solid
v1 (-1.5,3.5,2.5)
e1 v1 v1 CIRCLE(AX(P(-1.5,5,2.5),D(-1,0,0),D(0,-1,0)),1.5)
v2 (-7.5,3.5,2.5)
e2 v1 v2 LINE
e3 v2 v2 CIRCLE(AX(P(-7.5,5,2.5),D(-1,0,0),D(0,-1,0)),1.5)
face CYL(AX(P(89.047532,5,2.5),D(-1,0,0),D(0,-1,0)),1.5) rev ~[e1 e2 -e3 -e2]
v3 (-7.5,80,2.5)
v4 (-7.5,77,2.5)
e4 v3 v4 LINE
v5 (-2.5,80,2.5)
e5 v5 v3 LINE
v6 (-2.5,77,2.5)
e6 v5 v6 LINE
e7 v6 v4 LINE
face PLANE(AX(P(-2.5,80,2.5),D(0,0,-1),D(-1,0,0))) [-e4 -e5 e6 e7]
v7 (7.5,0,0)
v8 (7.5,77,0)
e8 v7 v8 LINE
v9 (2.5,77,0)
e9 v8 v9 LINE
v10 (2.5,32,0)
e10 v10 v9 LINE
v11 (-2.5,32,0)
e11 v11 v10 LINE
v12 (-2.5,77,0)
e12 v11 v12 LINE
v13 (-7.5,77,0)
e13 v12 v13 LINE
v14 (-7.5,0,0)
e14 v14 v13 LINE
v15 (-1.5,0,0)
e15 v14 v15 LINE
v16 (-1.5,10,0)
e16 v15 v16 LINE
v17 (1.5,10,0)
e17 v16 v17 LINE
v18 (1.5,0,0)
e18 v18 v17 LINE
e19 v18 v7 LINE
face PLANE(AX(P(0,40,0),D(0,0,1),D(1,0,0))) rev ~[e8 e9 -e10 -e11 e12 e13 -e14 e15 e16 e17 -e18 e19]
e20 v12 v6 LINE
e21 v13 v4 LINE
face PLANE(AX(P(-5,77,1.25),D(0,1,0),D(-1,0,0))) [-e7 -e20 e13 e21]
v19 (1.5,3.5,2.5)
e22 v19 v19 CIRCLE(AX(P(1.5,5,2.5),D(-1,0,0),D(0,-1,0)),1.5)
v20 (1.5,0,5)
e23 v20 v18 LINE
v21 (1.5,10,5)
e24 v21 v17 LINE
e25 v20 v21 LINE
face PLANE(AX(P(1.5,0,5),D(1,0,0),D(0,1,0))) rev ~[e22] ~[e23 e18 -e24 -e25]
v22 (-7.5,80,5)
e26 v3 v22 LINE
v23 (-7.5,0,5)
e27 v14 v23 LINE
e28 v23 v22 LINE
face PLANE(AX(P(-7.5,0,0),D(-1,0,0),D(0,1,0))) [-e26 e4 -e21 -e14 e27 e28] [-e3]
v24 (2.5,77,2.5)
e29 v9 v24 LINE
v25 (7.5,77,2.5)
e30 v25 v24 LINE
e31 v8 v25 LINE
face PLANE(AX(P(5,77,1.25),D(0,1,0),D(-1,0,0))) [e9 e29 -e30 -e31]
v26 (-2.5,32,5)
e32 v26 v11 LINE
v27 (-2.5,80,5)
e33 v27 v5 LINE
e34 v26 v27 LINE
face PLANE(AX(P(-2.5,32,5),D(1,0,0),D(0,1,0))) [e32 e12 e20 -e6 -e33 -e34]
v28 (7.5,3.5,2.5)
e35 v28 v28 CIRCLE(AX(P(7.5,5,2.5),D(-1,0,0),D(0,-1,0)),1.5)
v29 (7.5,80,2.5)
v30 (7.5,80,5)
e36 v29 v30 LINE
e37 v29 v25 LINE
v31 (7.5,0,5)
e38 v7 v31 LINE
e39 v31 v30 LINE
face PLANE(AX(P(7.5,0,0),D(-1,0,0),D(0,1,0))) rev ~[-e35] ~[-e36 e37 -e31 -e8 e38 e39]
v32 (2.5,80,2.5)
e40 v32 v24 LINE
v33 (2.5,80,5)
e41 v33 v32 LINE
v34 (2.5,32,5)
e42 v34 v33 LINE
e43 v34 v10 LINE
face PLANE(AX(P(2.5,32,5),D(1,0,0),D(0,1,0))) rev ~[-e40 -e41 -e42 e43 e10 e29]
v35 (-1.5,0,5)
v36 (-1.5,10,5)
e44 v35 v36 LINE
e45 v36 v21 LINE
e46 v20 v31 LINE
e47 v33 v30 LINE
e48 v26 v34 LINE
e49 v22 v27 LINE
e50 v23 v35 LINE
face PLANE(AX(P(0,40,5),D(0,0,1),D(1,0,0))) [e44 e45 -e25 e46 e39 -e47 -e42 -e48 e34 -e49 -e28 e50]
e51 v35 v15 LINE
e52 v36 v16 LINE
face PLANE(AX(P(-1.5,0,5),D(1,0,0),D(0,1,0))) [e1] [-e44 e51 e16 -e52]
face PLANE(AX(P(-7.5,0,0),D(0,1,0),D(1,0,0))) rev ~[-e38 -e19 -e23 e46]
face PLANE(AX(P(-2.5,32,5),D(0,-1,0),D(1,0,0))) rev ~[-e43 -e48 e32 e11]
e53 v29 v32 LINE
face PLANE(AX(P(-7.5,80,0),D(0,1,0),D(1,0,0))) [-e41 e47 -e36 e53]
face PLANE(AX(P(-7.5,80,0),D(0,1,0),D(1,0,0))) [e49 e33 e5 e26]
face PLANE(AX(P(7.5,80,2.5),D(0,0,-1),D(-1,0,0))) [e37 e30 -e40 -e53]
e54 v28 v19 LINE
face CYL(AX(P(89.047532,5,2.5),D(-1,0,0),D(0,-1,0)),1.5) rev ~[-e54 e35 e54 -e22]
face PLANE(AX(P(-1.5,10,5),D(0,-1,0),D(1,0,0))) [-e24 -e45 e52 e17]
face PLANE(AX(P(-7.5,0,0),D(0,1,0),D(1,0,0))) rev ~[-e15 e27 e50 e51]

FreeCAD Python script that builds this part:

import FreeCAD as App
import Part
import Sketcher

doc = App.newDocument("Part")
body = doc.addObject("PartDesign::Body", "Body")

sketch1 = doc.addObject("Sketcher::SketchObject", "Sketch")
body.addObject(sketch1)
sketch1.AttachmentSupport = (doc.XY_Plane, [""])
sketch1.MapMode = "FlatFace"
sketch1.addGeometry([
    Part.LineSegment(App.Vector(-8, 80, 0), App.Vector(-8, 0, 0)),
    Part.LineSegment(App.Vector(-8, 0, 0), App.Vector(8, 0, 0)),
    Part.LineSegment(App.Vector(8, 0, 0), App.Vector(8, 80, 0)),
    Part.LineSegment(App.Vector(8, 80, 0), App.Vector(-8, 80, 0)),
], False)
sketch1.addConstraint([
    Sketcher.Constraint("Coincident", 0, 2, 1, 1),
    Sketcher.Constraint("Coincident", 1, 2, 2, 1),
    Sketcher.Constraint("Coincident", 2, 2, 3, 1),
    Sketcher.Constraint("Coincident", 3, 2, 0, 1),
    Sketcher.Constraint("Vertical", 0),
    Sketcher.Constraint("Horizontal", 1),
    Sketcher.Constraint("Vertical", 2),
    Sketcher.Constraint("Horizontal", 3),
    Sketcher.Constraint("Symmetric", 0, 2, 1, 2, -1, 1),
    Sketcher.Constraint("DistanceX", 1, 1, 1, 2, 15.0),
    Sketcher.Constraint("DistanceY", 0, 2, 0, 1, 80.0),
])
pad1 = doc.addObject("PartDesign::Pad", "Pad")
body.addObject(pad1)
pad1.Profile = sketch1
pad1.Length = 5

sketch2 = doc.addObject("Sketcher::SketchObject", "Sketch001")
body.addObject(sketch2)
sketch2.AttachmentSupport = (doc.XY_Plane, [""])
sketch2.MapMode = "FlatFace"
sketch2.AttachmentOffset = App.Placement(App.Vector(0, 0, 5), App.Rotation())
sketch2.addGeometry([
    Part.LineSegment(App.Vector(-2, 80, 0), App.Vector(-2, 32, 0)),
    Part.LineSegment(App.Vector(-2, 32, 0), App.Vector(2, 32, 0)),
    Part.LineSegment(App.Vector(2, 32, 0), App.Vector(2, 80, 0)),
    Part.LineSegment(App.Vector(2, 80, 0), App.Vector(-2, 80, 0)),
], False)
sketch2.addConstraint([
    Sketcher.Constraint("Coincident", 0, 2, 1, 1),
    Sketcher.Constraint("Coincident", 1, 2, 2, 1),
    Sketcher.Constraint("Coincident", 2, 2, 3, 1),
    Sketcher.Constraint("Coincident", 3, 2, 0, 1),
    Sketcher.Constraint("Vertical", 0),
    Sketcher.Constraint("Horizontal", 1),
    Sketcher.Constraint("Vertical", 2),
    Sketcher.Constraint("Horizontal", 3),
    Sketcher.Constraint("DistanceX", 1, 1, 1, 2, 5.0),
    Sketcher.Constraint("DistanceY", 0, 2, 0, 1, 48.0),
    Sketcher.Constraint("DistanceY", -1, 1, 0, 2, 32.0),
    Sketcher.Constraint("DistanceX", 0, 2, -1, 1, 2.5),
])
pocket1 = doc.addObject("PartDesign::Pocket", "Pocket")
body.addObject(pocket1)
pocket1.Profile = sketch2
pocket1.Length = 25

sketch3 = doc.addObject("Sketcher::SketchObject", "Sketch002")
body.addObject(sketch3)
sketch3.AttachmentSupport = (doc.XZ_Plane, [""])
sketch3.MapMode = "FlatFace"
sketch3.AttachmentOffset = App.Placement(App.Vector(0, 0, -80), App.Rotation())
sketch3.addGeometry([
    Part.LineSegment(App.Vector(-2.5, 2.5, 0), App.Vector(-2.5, 0, 0)),
    Part.LineSegment(App.Vector(-2.5, 0, 0), App.Vector(-7.5, 0, 0)),
    Part.LineSegment(App.Vector(-7.5, 0, 0), App.Vector(-7.5, 2.5, 0)),
    Part.LineSegment(App.Vector(-7.5, 2.5, 0), App.Vector(-2.5, 2.5, 0)),
], False)
sketch3.addConstraint([
    Sketcher.Constraint("Coincident", 0, 2, 1, 1),
    Sketcher.Constraint("Coincident", 1, 2, 2, 1),
    Sketcher.Constraint("Coincident", 2, 2, 3, 1),
    Sketcher.Constraint("Coincident", 3, 2, 0, 1),
    Sketcher.Constraint("Vertical", 0),
    Sketcher.Constraint("Horizontal", 1),
    Sketcher.Constraint("Vertical", 2),
    Sketcher.Constraint("Horizontal", 3),
    Sketcher.Constraint("PointOnObject", 0, 2, -1),
    Sketcher.Constraint("DistanceX", 1, 2, 1, 1, 5.0),
    Sketcher.Constraint("DistanceY", 0, 2, 0, 1, 2.5),
    Sketcher.Constraint("DistanceX", 0, 2, -1, 1, 2.5),
])
pocket2 = doc.addObject("PartDesign::Pocket", "Pocket001")
body.addObject(pocket2)
pocket2.Profile = sketch3
pocket2.Length = 3
pocket2.Reversed = True

sketch4 = doc.addObject("Sketcher::SketchObject", "Sketch003")
body.addObject(sketch4)
sketch4.AttachmentSupport = (doc.XZ_Plane, [""])
sketch4.MapMode = "FlatFace"
sketch4.AttachmentOffset = App.Placement(App.Vector(0, 0, -80), App.Rotation())
sketch4.addGeometry([
    Part.LineSegment(App.Vector(7.5, 2.5, 0), App.Vector(7.5, 0, 0)),
    Part.LineSegment(App.Vector(7.5, 0, 0), App.Vector(2.5, 0, 0)),
    Part.LineSegment(App.Vector(2.5, 0, 0), App.Vector(2.5, 2.5, 0)),
    Part.LineSegment(App.Vector(2.5, 2.5, 0), App.Vector(7.5, 2.5, 0)),
], False)
sketch4.addConstraint([
    Sketcher.Constraint("Coincident", 0, 2, 1, 1),
    Sketcher.Constraint("Coincident", 1, 2, 2, 1),
    Sketcher.Constraint("Coincident", 2, 2, 3, 1),
    Sketcher.Constraint("Coincident", 3, 2, 0, 1),
    Sketcher.Constraint("Vertical", 0),
    Sketcher.Constraint("Horizontal", 1),
    Sketcher.Constraint("Vertical", 2),
    Sketcher.Constraint("Horizontal", 3),
    Sketcher.Constraint("PointOnObject", 0, 2, -1),
    Sketcher.Constraint("DistanceX", 1, 2, 1, 1, 5.0),
    Sketcher.Constraint("DistanceY", 0, 2, 0, 1, 2.5),
    Sketcher.Constraint("DistanceX", -1, 1, 0, 2, 7.5),
])
pocket3 = doc.addObject("PartDesign::Pocket", "Pocket002")
body.addObject(pocket3)
pocket3.Profile = sketch4
pocket3.Length = 3
pocket3.Reversed = True

sketch5 = doc.addObject("Sketcher::SketchObject", "Sketch004")
body.addObject(sketch5)
sketch5.AttachmentSupport = (doc.XY_Plane, [""])
sketch5.MapMode = "FlatFace"
sketch5.AttachmentOffset = App.Placement(App.Vector(0, 0, 5), App.Rotation())
sketch5.addGeometry([
    Part.LineSegment(App.Vector(-1.5, 10, 0), App.Vector(-1.5, 0, 0)),
    Part.LineSegment(App.Vector(-1.5, 0, 0), App.Vector(1.5, 0, 0)),
    Part.LineSegment(App.Vector(1.5, 0, 0), App.Vector(1.5, 10, 0)),
    Part.LineSegment(App.Vector(1.5, 10, 0), App.Vector(-1.5, 10, 0)),
], False)
sketch5.addConstraint([
    Sketcher.Constraint("Coincident", 0, 2, 1, 1),
    Sketcher.Constraint("Coincident", 1, 2, 2, 1),
    Sketcher.Constraint("Coincident", 2, 2, 3, 1),
    Sketcher.Constraint("Coincident", 3, 2, 0, 1),
    Sketcher.Constraint("Vertical", 0),
    Sketcher.Constraint("Horizontal", 1),
    Sketcher.Constraint("Vertical", 2),
    Sketcher.Constraint("Horizontal", 3),
    Sketcher.Constraint("Symmetric", 0, 2, 1, 2, -1, 1),
    Sketcher.Constraint("DistanceX", 1, 1, 1, 2, 3.0),
    Sketcher.Constraint("DistanceY", 0, 2, 0, 1, 10.0),
])
pocket4 = doc.addObject("PartDesign::Pocket", "Pocket003")
body.addObject(pocket4)
pocket4.Profile = sketch5
pocket4.Length = 25

sketch6 = doc.addObject("Sketcher::SketchObject", "Sketch005")
body.addObject(sketch6)
sketch6.AttachmentSupport = (doc.YZ_Plane, [""])
sketch6.MapMode = "FlatFace"
sketch6.AttachmentOffset = App.Placement(App.Vector(0, 0, 7.5), App.Rotation())
sketch6.addGeometry(Part.Circle(App.Vector(5, 2.5, 0), App.Vector(0, 0, 1), 1.5), False)
sketch6.addConstraint([
    Sketcher.Constraint("Diameter", 0, 3.0),
    Sketcher.Constraint("DistanceX", -1, 1, 0, 3, 5.0),
    Sketcher.Constraint("DistanceY", -1, 1, 0, 3, 2.5),
])
doc.recompute()
hole = doc.addObject("PartDesign::Hole", "Hole")
body.addObject(hole)
hole.Profile = sketch6
hole.ThreadType = "None"
hole.Diameter = 3
hole.DepthType = "ThroughAll"

doc.recompute()
